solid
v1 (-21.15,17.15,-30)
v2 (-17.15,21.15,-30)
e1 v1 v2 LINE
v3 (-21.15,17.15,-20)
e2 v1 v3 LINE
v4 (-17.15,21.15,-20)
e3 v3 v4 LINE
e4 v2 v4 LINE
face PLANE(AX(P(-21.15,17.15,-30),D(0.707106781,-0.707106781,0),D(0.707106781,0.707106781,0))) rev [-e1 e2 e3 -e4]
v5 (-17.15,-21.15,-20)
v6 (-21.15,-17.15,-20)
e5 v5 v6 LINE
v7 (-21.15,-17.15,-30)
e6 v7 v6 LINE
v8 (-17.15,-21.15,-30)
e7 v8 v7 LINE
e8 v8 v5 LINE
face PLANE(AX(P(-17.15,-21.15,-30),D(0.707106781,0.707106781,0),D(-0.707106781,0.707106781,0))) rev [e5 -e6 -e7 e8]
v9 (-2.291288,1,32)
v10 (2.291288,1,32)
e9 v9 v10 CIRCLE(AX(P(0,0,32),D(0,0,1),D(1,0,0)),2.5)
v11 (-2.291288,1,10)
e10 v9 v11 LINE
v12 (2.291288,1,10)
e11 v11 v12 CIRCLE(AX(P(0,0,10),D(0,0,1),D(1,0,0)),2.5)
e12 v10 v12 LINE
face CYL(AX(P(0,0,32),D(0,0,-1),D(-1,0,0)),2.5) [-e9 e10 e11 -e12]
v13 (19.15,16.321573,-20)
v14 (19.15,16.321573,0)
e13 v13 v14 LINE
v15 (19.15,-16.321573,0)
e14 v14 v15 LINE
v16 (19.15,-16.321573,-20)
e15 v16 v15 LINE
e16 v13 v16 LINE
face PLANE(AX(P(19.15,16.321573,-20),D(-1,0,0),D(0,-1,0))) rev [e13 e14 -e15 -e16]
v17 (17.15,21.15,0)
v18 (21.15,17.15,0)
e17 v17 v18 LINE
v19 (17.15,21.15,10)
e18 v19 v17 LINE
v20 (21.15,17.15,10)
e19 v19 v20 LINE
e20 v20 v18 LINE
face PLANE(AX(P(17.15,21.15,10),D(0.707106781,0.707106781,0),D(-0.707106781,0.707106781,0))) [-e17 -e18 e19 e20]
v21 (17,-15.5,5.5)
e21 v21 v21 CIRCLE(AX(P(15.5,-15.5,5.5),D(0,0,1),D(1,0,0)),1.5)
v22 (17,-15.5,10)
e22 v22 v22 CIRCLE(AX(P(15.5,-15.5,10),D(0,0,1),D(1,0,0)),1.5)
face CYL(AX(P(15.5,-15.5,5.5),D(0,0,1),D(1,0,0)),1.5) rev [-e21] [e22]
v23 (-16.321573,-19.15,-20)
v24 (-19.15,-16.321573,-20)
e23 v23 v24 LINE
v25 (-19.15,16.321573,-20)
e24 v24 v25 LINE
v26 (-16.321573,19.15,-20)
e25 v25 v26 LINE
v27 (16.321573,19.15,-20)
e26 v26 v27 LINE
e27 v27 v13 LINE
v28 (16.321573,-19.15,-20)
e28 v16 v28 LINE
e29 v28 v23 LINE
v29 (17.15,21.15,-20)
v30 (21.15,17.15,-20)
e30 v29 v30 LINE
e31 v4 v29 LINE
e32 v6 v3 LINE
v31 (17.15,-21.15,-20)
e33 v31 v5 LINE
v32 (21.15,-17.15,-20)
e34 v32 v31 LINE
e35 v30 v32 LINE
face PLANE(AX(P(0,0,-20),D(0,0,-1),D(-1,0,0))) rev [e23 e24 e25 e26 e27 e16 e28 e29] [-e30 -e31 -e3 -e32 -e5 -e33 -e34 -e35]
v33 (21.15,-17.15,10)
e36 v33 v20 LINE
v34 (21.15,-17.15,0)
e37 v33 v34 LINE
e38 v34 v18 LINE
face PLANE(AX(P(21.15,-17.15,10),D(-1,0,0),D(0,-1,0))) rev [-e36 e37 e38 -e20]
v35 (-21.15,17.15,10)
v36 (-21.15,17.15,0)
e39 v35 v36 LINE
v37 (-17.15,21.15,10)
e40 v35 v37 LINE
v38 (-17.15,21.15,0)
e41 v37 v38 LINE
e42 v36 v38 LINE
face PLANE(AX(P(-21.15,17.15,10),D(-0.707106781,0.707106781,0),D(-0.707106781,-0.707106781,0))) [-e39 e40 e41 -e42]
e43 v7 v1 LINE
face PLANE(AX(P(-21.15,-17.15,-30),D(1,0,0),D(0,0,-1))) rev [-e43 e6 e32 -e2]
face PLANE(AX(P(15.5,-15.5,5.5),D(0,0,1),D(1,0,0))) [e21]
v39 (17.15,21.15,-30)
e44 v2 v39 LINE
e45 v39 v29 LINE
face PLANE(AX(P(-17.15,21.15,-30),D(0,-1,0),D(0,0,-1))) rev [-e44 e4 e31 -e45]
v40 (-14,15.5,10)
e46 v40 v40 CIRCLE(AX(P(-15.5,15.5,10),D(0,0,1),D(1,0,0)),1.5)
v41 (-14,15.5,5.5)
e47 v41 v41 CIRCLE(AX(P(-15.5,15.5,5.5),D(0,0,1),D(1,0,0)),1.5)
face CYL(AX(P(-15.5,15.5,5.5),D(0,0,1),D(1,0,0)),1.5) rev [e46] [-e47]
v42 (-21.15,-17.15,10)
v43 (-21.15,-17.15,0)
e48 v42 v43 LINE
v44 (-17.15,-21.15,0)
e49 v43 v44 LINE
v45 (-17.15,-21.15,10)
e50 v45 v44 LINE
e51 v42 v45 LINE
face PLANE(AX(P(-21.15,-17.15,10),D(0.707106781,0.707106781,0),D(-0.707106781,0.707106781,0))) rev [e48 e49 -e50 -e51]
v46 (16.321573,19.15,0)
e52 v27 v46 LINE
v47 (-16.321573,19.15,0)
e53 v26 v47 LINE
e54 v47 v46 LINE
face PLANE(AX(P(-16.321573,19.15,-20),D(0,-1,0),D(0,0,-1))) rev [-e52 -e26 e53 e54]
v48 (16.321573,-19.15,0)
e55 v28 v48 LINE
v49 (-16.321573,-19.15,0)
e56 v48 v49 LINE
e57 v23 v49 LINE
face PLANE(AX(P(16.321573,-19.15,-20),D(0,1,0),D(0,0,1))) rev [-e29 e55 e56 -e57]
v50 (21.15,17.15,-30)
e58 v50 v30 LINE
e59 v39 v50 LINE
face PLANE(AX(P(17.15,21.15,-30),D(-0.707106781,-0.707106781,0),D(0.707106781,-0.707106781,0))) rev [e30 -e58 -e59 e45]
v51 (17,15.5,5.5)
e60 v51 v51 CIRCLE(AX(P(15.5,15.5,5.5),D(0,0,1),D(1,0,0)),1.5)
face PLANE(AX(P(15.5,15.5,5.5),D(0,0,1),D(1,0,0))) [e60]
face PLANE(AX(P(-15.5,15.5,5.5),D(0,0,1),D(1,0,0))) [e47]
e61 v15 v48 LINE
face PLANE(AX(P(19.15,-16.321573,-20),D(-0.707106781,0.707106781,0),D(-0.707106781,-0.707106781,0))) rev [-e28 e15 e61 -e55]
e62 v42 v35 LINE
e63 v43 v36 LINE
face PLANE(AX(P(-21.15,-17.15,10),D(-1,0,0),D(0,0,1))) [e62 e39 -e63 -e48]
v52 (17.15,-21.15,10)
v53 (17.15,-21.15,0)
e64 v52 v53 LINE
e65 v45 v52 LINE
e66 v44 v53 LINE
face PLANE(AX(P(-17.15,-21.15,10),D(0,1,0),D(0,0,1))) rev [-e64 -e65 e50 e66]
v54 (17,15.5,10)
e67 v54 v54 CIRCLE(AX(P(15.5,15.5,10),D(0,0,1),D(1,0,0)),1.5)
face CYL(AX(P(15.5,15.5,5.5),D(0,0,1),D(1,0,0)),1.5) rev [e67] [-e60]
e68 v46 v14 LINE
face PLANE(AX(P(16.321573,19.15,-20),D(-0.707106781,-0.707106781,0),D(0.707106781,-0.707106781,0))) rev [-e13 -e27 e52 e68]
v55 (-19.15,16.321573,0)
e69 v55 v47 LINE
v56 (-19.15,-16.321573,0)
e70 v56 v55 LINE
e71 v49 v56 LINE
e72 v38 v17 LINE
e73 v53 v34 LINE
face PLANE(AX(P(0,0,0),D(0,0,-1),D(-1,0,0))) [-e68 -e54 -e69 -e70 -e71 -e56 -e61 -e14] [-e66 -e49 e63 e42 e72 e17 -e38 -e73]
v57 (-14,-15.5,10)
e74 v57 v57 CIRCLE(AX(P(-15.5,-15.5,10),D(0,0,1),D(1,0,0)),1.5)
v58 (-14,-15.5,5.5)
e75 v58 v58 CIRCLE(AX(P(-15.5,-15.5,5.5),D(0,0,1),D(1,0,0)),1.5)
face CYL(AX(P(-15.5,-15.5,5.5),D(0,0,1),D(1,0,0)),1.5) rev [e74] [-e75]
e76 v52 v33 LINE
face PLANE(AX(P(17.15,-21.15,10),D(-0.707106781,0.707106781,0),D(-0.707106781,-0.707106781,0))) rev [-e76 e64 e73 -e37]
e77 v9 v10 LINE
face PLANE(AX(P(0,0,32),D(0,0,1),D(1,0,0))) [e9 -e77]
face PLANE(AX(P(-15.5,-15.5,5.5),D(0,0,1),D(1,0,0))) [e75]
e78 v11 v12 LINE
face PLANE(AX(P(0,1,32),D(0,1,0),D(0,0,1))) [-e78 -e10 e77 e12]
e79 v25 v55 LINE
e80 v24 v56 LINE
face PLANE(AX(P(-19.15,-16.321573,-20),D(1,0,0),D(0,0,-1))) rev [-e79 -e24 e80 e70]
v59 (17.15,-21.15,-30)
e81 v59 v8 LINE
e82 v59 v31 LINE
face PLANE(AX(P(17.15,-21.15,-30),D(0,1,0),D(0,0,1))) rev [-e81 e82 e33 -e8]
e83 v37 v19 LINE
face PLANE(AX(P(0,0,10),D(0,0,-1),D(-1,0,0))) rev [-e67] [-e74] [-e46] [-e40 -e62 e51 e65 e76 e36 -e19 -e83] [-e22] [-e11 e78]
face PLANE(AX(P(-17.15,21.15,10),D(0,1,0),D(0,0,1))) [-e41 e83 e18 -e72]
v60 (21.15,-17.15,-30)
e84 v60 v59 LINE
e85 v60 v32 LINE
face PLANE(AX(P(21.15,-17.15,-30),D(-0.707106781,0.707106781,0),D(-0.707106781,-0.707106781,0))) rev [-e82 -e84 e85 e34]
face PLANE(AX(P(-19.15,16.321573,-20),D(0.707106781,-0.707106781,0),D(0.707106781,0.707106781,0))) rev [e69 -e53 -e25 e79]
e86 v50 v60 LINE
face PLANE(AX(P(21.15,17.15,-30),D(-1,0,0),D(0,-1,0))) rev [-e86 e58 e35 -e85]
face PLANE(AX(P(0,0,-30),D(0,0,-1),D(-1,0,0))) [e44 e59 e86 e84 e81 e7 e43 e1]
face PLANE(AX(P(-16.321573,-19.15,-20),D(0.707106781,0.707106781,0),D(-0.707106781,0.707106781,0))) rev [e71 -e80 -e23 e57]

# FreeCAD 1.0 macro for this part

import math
import FreeCAD as App
import Part
import Sketcher


def add_polygon(sketch, points):
    """Adds a closed chain of lines whose ends are joined by coincident constraints."""
    first, n = sketch.GeometryCount, len(points)
    for a, b in zip(points, points[1:] + points[:1]):
        sketch.addGeometry(Part.LineSegment(App.Vector(*a, 0), App.Vector(*b, 0)), False)
    for i in range(n):
        sketch.addConstraint(Sketcher.Constraint("Coincident", first + i, 2, first + (i + 1) % n, 1))

doc = App.newDocument("Part")
body = doc.addObject("PartDesign::Body", "Body")

# Sketch on XY plane
sketch1 = body.newObject("Sketcher::SketchObject", "Sketch")
sketch1.AttachmentSupport = (doc.getObject("XY_Plane"), [""])
sketch1.MapMode = "FlatFace"
add_polygon(sketch1, [(-17, 21), (-21, 17), (-21, -17), (-17, -21), (17, -21), (21, -17), (21, 17), (17, 21)])  # lines 0-7
sketch1.addConstraint(Sketcher.Constraint("Vertical", 1))
sketch1.addConstraint(Sketcher.Constraint("Horizontal", 3))
sketch1.addConstraint(Sketcher.Constraint("Vertical", 5))
sketch1.addConstraint(Sketcher.Constraint("Horizontal", 7))
sketch1.addConstraint(Sketcher.Constraint("Symmetric", 0, 2, 4, 2, -1, 1))
sketch1.addConstraint(Sketcher.Constraint("Symmetric", 2, 2, 6, 2, -1, 1))
sketch1.addConstraint(Sketcher.Constraint("Perpendicular", 0, 2))
sketch1.addConstraint(Sketcher.Constraint("Perpendicular", 2, 4))
sketch1.addConstraint(Sketcher.Constraint("Perpendicular", 4, 6))
sketch1.addConstraint(Sketcher.Constraint("Horizontal", 1, 2, 4, 2))
sketch1.addConstraint(Sketcher.Constraint("Vertical", 3, 2, 6, 2))
sketch1.addConstraint(Sketcher.Constraint("Equal", 7, 1))
sketch1.addConstraint(Sketcher.Constraint("DistanceX", 3, 1, 3, 2, 34.3))
sketch1.addConstraint(Sketcher.Constraint("DistanceX", 1, 2, 2, 2, 4.0))
pad1 = body.newObject("PartDesign::Pad", "Pad")
pad1.Profile = sketch1
pad1.Length = 10

# Sketch on XY plane
sketch2 = body.newObject("Sketcher::SketchObject", "Sketch001")
sketch2.AttachmentSupport = (doc.getObject("XY_Plane"), [""])
sketch2.MapMode = "FlatFace"
add_polygon(sketch2, [(-19.1, 16.3), (-16.3, 19.1), (16.3, 19.1), (19.1, 16.3), (19.1, -16.3), (16.3, -19.1), (-16.3, -19.1), (-19.1, -16.3)])  # lines 0-7
sketch2.addConstraint(Sketcher.Constraint("Horizontal", 1))
sketch2.addConstraint(Sketcher.Constraint("Vertical", 3))
sketch2.addConstraint(Sketcher.Constraint("Horizontal", 5))
sketch2.addConstraint(Sketcher.Constraint("Vertical", 7))
sketch2.addConstraint(Sketcher.Constraint("Symmetric", 0, 2, 4, 2, -1, 1))
sketch2.addConstraint(Sketcher.Constraint("Symmetric", 2, 2, 6, 2, -1, 1))
sketch2.addConstraint(Sketcher.Constraint("Perpendicular", 0, 2))
sketch2.addConstraint(Sketcher.Constraint("Perpendicular", 2, 4))
sketch2.addConstraint(Sketcher.Constraint("Perpendicular", 4, 6))
sketch2.addConstraint(Sketcher.Constraint("Horizontal", 3, 2, 6, 2))
sketch2.addConstraint(Sketcher.Constraint("Vertical", 1, 2, 4, 2))
sketch2.addConstraint(Sketcher.Constraint("Equal", 5, 3))
sketch2.addConstraint(Sketcher.Constraint("Distance", 0, 4.0))
sketch2.addConstraint(Sketcher.Constraint("DistanceY", 4, 2, 1, 2, 38.3))
pad2 = body.newObject("PartDesign::Pad", "Pad001")
pad2.Profile = sketch2
pad2.Length = 20
pad2.Reversed = True

# Sketch on XY plane
sketch3 = body.newObject("Sketcher::SketchObject", "Sketch002")
sketch3.AttachmentSupport = (doc.getObject("XY_Plane"), [""])
sketch3.MapMode = "FlatFace"
sketch3.AttachmentOffset = App.Placement(App.Vector(0, 0, -20), App.Rotation())
add_polygon(sketch3, [(-21, 17), (-17, 21), (17, 21), (21, 17), (21, -17), (17, -21), (-17, -21), (-21, -17)])  # lines 0-7
sketch3.addConstraint(Sketcher.Constraint("Horizontal", 1))
sketch3.addConstraint(Sketcher.Constraint("Vertical", 3))
sketch3.addConstraint(Sketcher.Constraint("Horizontal", 5))
sketch3.addConstraint(Sketcher.Constraint("Vertical", 7))
sketch3.addConstraint(Sketcher.Constraint("Symmetric", 0, 2, 4, 2, -1, 1))
sketch3.addConstraint(Sketcher.Constraint("Symmetric", 2, 2, 6, 2, -1, 1))
sketch3.addConstraint(Sketcher.Constraint("Perpendicular", 0, 2))
sketch3.addConstraint(Sketcher.Constraint("Perpendicular", 2, 4))
sketch3.addConstraint(Sketcher.Constraint("Perpendicular", 4, 6))
sketch3.addConstraint(Sketcher.Constraint("Horizontal", 3, 2, 6, 2))
sketch3.addConstraint(Sketcher.Constraint("Vertical", 1, 2, 4, 2))
sketch3.addConstraint(Sketcher.Constraint("Equal", 5, 3))
sketch3.addConstraint(Sketcher.Constraint("DistanceX", 1, 1, 1, 2, 34.3))
sketch3.addConstraint(Sketcher.Constraint("DistanceX", 1, 2, 2, 2, 4.0))
pad3 = body.newObject("PartDesign::Pad", "Pad002")
pad3.Profile = sketch3
pad3.Length = 10
pad3.Reversed = True

# Sketch on XY plane
sketch4 = body.newObject("Sketcher::SketchObject", "Sketch003")
sketch4.AttachmentSupport = (doc.getObject("XY_Plane"), [""])
sketch4.MapMode = "FlatFace"
sketch4.AttachmentOffset = App.Placement(App.Vector(0, 0, 10), App.Rotation())
sketch4.addGeometry(Part.LineSegment(App.Vector(2.3, 1, 0), App.Vector(-2.3, 1, 0)), False)
sketch4.addGeometry(Part.ArcOfCircle(Part.Circle(App.Vector(0, 0, 0), App.Vector(0, 0, 1), 2.5), math.radians(156), math.radians(360)), False)
sketch4.addGeometry(Part.ArcOfCircle(Part.Circle(App.Vector(0, 0, 0), App.Vector(0, 0, 1), 2.5), math.radians(0), math.radians(24)), False)
sketch4.addConstraint(Sketcher.Constraint("Coincident", 0, 2, 1, 1))
sketch4.addConstraint(Sketcher.Constraint("Tangent", 1, 2, 2, 1))
sketch4.addConstraint(Sketcher.Constraint("Coincident", 2, 2, 0, 1))
sketch4.addConstraint(Sketcher.Constraint("Horizontal", 0))
sketch4.addConstraint(Sketcher.Constraint("Coincident", 1, 3, -1, 1))
sketch4.addConstraint(Sketcher.Constraint("Equal", 1, 2))
sketch4.addConstraint(Sketcher.Constraint("PointOnObject", 1, 2, -1))
sketch4.addConstraint(Sketcher.Constraint("Radius", 1, 2.5))
sketch4.addConstraint(Sketcher.Constraint("DistanceY", -1, 1, 0, 2, 1.0))
pad4 = body.newObject("PartDesign::Pad", "Pad003")
pad4.Profile = sketch4
pad4.Length = 22

# Sketch on XY plane
sketch5 = body.newObject("Sketcher::SketchObject", "Sketch004")
sketch5.AttachmentSupport = (doc.getObject("XY_Plane"), [""])
sketch5.MapMode = "FlatFace"
sketch5.AttachmentOffset = App.Placement(App.Vector(0, 0, 10), App.Rotation())
sketch5.addGeometry(Part.Circle(App.Vector(-15.5, 15.5, 0), App.Vector(0, 0, 1), 1.5), False)
sketch5.addGeometry(Part.Circle(App.Vector(15.5, 15.5, 0), App.Vector(0, 0, 1), 1.5), False)
sketch5.addGeometry(Part.Circle(App.Vector(15.5, -15.5, 0), App.Vector(0, 0, 1), 1.5), False)
sketch5.addGeometry(Part.Circle(App.Vector(-15.5, -15.5, 0), App.Vector(0, 0, 1), 1.5), False)
sketch5.addConstraint(Sketcher.Constraint("Equal", 0, 1))
sketch5.addConstraint(Sketcher.Constraint("Equal", 1, 2))
sketch5.addConstraint(Sketcher.Constraint("Equal", 2, 3))
sketch5.addConstraint(Sketcher.Constraint("Symmetric", 0, 3, 2, 3, -1, 1))
sketch5.addConstraint(Sketcher.Constraint("Symmetric", 1, 3, 3, 3, -1, 1))
sketch5.addConstraint(Sketcher.Constraint("Symmetric", 0, 3, 1, 3, -2))
sketch5.addConstraint(Sketcher.Constraint("Diameter", 0, 3.0))
sketch5.addConstraint(Sketcher.Constraint("DistanceX", 0, 3, 1, 3, 31.0))
sketch5.addConstraint(Sketcher.Constraint("DistanceY", 2, 3, 1, 3, 31.0))
pocket1 = body.newObject("PartDesign::Pocket", "Pocket")
pocket1.Profile = sketch5
pocket1.Length = 4.5

doc.recompute()
